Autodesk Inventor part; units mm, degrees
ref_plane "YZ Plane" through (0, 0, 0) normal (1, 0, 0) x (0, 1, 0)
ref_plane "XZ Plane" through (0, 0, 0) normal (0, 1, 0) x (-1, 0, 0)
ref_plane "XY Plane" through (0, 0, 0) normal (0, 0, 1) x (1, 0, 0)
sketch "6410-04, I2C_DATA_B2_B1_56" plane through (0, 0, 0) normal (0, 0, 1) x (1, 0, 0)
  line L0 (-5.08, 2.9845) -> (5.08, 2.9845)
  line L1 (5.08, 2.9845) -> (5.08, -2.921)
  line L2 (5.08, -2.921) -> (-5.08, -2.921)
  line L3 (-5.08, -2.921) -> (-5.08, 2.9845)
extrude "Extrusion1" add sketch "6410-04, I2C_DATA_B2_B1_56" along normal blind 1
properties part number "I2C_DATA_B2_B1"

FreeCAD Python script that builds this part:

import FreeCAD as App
import Part
import Sketcher


def add_polygon(sketch, points):
    """Adds a closed chain of lines whose ends are joined by coincident constraints."""
    first, n = sketch.GeometryCount, len(points)
    for a, b in zip(points, points[1:] + points[:1]):
        sketch.addGeometry(Part.LineSegment(App.Vector(*a, 0), App.Vector(*b, 0)), False)
    for i in range(n):
        sketch.addConstraint(Sketcher.Constraint("Coincident", first + i, 2, first + (i + 1) % n, 1))

doc = App.newDocument("Part")
body = doc.addObject("PartDesign::Body", "Body")

# Sketch on XY plane
sketch1 = doc.addObject("Sketcher::SketchObject", "Sketch")
body.addObject(sketch1)
sketch1.AttachmentSupport = (doc.XY_Plane, [""])
sketch1.MapMode = "FlatFace"
add_polygon(sketch1, [(5.08, 2.9845), (-5.08, 2.9845), (-5.08, -2.921), (5.08, -2.921)])  # lines 0-3
sketch1.addConstraint([
    Sketcher.Constraint("Horizontal", 0),
    Sketcher.Constraint("Vertical", 1),
    Sketcher.Constraint("Horizontal", 2),
    Sketcher.Constraint("Vertical", 3),
    Sketcher.Constraint("DistanceX", 0, 2, 0, 1, 10.16),
    Sketcher.Constraint("DistanceX", 0, 2, -1, 1, 5.08),
    Sketcher.Constraint("DistanceY", 1, 2, 1, 1, 5.9055),
    Sketcher.Constraint("DistanceY", 1, 2, -1, 1, 2.921),
])
pad1 = doc.addObject("PartDesign::Pad", "Pad")
body.addObject(pad1)
pad1.Profile = sketch1
pad1.Length = 1

doc.recompute()
